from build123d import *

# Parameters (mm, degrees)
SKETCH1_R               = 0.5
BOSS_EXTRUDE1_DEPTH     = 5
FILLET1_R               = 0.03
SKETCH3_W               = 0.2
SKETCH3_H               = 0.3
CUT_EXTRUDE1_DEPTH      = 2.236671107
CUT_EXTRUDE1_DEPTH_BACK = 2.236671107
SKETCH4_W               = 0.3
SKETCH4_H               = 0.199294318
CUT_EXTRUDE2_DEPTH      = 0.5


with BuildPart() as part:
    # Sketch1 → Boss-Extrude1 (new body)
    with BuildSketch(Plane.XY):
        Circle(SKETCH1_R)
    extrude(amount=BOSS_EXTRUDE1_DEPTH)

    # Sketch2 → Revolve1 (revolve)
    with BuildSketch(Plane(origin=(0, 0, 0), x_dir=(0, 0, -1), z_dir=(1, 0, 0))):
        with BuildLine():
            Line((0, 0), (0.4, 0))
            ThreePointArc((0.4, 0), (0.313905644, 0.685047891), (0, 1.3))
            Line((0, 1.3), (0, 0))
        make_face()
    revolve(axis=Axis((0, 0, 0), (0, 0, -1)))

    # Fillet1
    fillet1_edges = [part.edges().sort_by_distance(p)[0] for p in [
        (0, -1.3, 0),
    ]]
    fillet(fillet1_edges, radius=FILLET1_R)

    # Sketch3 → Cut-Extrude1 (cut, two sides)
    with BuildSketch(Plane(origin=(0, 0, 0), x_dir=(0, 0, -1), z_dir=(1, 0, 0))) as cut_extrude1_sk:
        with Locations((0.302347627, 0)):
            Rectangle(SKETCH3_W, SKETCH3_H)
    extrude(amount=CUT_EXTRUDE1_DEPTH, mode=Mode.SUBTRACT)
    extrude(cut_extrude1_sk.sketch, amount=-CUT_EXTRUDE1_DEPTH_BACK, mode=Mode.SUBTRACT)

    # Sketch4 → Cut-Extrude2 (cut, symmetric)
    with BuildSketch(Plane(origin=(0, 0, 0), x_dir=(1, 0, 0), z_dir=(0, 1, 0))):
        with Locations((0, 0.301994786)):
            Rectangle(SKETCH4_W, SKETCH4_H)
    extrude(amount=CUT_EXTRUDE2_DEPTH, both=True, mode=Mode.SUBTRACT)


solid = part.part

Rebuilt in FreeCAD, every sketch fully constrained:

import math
import FreeCAD as App
import Part
import Sketcher


def edges_at(feature, points):
    """Names of the edges that pass closest to the given points."""
    edges = feature.Shape.Edges
    near = lambda p: min(range(len(edges)), key=lambda i: edges[i].distToShape(Part.Vertex(*p))[0])
    return sorted({f"Edge{near(p) + 1}" for p in points})

doc = App.newDocument("Part")
body = doc.addObject("PartDesign::Body", "Body")

sketch1 = doc.addObject("Sketcher::SketchObject", "Sketch")
body.addObject(sketch1)
sketch1.AttachmentSupport = (doc.XY_Plane, [""])
sketch1.MapMode = "FlatFace"
sketch1.addGeometry(Part.Circle(App.Vector(0, 0, 0), App.Vector(0, 0, 1), 0.5), False)
sketch1.addConstraint([
    Sketcher.Constraint("Coincident", 0, 3, -1, 1),
    Sketcher.Constraint("Diameter", 0, 1.0),
])
pad1 = doc.addObject("PartDesign::Pad", "Pad")
body.addObject(pad1)
pad1.Profile = sketch1
pad1.Length = 5

sketch2 = doc.addObject("Sketcher::SketchObject", "Sketch001")
body.addObject(sketch2)
sketch2.AttachmentSupport = (doc.YZ_Plane, [""])
sketch2.MapMode = "FlatFace"
sketch2.addGeometry([
    Part.LineSegment(App.Vector(0, 0, 0), App.Vector(0, -0.4, 0)),
    Part.ArcOfCircle(Part.Circle(App.Vector(0.096876, 1.597652, 0), App.Vector(0, 0, 1), 2), math.radians(-92.776385), math.radians(-53.018157)),
    Part.LineSegment(App.Vector(1.3, 0, 0), App.Vector(0, 0, 0)),
], False)
sketch2.addConstraint([
    Sketcher.Constraint("Coincident", 0, 2, 1, 1),
    Sketcher.Constraint("Coincident", 1, 2, 2, 1),
    Sketcher.Constraint("Coincident", 2, 2, 0, 1),
    Sketcher.Constraint("Vertical", 0),
    Sketcher.Constraint("Horizontal", 2),
    Sketcher.Constraint("Coincident", 2, 2, -1, 1),
    Sketcher.Constraint("Radius", 1, 2.0),
    Sketcher.Constraint("DistanceX", 2, 2, 2, 1, 1.3),
    Sketcher.Constraint("DistanceY", 0, 2, 0, 1, 0.4),
])
revolution = doc.addObject("PartDesign::Revolution", "Revolution")
body.addObject(revolution)
revolution.Profile = sketch2
revolution.ReferenceAxis = (sketch2, ["V_Axis"])
revolution.Angle = 360
doc.recompute()

fillet = doc.addObject("PartDesign::Fillet", "Fillet")
body.addObject(fillet)
fillet.Base = (revolution, edges_at(revolution, [(0, -1.3, 0)]))
fillet.Radius = 0.03

sketch3 = doc.addObject("Sketcher::SketchObject", "Sketch002")
body.addObject(sketch3)
sketch3.AttachmentSupport = (doc.YZ_Plane, [""])
sketch3.MapMode = "FlatFace"
sketch3.addGeometry([
    Part.LineSegment(App.Vector(0.15, -0.202348, 0), App.Vector(-0.15, -0.202348, 0)),
    Part.LineSegment(App.Vector(-0.15, -0.202348, 0), App.Vector(-0.15, -0.402348, 0)),
    Part.LineSegment(App.Vector(-0.15, -0.402348, 0), App.Vector(0.15, -0.402348, 0)),
    Part.LineSegment(App.Vector(0.15, -0.402348, 0), App.Vector(0.15, -0.202348, 0)),
], False)
sketch3.addConstraint([
    Sketcher.Constraint("Coincident", 0, 2, 1, 1),
    Sketcher.Constraint("Coincident", 1, 2, 2, 1),
    Sketcher.Constraint("Coincident", 2, 2, 3, 1),
    Sketcher.Constraint("Coincident", 3, 2, 0, 1),
    Sketcher.Constraint("Horizontal", 0),
    Sketcher.Constraint("Vertical", 1),
    Sketcher.Constraint("Horizontal", 2),
    Sketcher.Constraint("Vertical", 3),
    Sketcher.Constraint("DistanceX", 0, 2, 0, 1, 0.3),
    Sketcher.Constraint("DistanceY", 1, 2, 1, 1, 0.2),
    Sketcher.Constraint("DistanceX", 0, 2, -1, 1, 0.15),
    Sketcher.Constraint("DistanceY", 0, 2, -1, 1, 0.202348),
])
pocket1 = doc.addObject("PartDesign::Pocket", "Pocket")
body.addObject(pocket1)
pocket1.Profile = sketch3
pocket1.Type = "ThroughAll"
pocket1.Midplane = True

sketch4 = doc.addObject("Sketcher::SketchObject", "Sketch003")
body.addObject(sketch4)
sketch4.AttachmentSupport = (doc.XZ_Plane, [""])
sketch4.MapMode = "FlatFace"
sketch4.addGeometry([
    Part.LineSegment(App.Vector(-0.15, -0.401642, 0), App.Vector(-0.15, -0.202348, 0)),
    Part.LineSegment(App.Vector(-0.15, -0.202348, 0), App.Vector(0.15, -0.202348, 0)),
    Part.LineSegment(App.Vector(0.15, -0.202348, 0), App.Vector(0.15, -0.401642, 0)),
    Part.LineSegment(App.Vector(0.15, -0.401642, 0), App.Vector(-0.15, -0.401642, 0)),
], False)
sketch4.addConstraint([
    Sketcher.Constraint("Coincident", 0, 2, 1, 1),
    Sketcher.Constraint("Coincident", 1, 2, 2, 1),
    Sketcher.Constraint("Coincident", 2, 2, 3, 1),
    Sketcher.Constraint("Coincident", 3, 2, 0, 1),
    Sketcher.Constraint("Vertical", 0),
    Sketcher.Constraint("Horizontal", 1),
    Sketcher.Constraint("Vertical", 2),
    Sketcher.Constraint("Horizontal", 3),
    Sketcher.Constraint("DistanceX", 1, 1, 1, 2, 0.3),
    Sketcher.Constraint("DistanceX", 0, 2, -1, 1, 0.15),
    Sketcher.Constraint("DistanceY", 0, 1, 0, 2, 0.199294),
    Sketcher.Constraint("DistanceY", 2, 2, -1, 1, 0.401642),
])
pocket2 = doc.addObject("PartDesign::Pocket", "Pocket001")
body.addObject(pocket2)
pocket2.Profile = sketch4
pocket2.Length = 1
pocket2.Midplane = True

doc.recompute()
